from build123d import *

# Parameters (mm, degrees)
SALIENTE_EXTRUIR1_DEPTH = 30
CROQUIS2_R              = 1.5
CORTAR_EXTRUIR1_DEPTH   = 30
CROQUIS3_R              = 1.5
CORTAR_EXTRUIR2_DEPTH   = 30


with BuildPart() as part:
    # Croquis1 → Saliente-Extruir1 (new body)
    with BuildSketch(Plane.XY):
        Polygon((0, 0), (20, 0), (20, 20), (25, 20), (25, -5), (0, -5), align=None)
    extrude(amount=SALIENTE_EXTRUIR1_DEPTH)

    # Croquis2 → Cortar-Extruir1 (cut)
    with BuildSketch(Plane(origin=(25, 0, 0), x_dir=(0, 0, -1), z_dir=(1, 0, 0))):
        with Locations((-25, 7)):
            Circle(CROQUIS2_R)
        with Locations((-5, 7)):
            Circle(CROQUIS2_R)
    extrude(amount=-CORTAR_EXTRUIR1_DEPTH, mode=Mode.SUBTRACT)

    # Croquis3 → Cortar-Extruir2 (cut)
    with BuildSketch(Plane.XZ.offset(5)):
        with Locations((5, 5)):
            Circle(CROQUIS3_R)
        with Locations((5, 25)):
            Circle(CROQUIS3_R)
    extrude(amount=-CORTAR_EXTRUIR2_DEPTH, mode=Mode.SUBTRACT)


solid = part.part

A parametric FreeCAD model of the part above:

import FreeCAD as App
import Part
import Sketcher
from FreeCAD import Vector


def add_polygon(sketch, points):
    """Adds a closed chain of lines whose ends are joined by coincident constraints."""
    first, n = sketch.GeometryCount, len(points)
    for a, b in zip(points, points[1:] + points[:1]):
        sketch.addGeometry(Part.LineSegment(App.Vector(*a, 0), App.Vector(*b, 0)), False)
    for i in range(n):
        sketch.addConstraint(Sketcher.Constraint("Coincident", first + i, 2, first + (i + 1) % n, 1))

doc = App.newDocument("Part")
body = doc.addObject("PartDesign::Body", "Body")

sketch1 = body.newObject("Sketcher::SketchObject", "Sketch")
sketch1.AttachmentSupport = (doc.getObject("XY_Plane"), [""])
sketch1.MapMode = "FlatFace"
add_polygon(sketch1, [(20, 0), (0, 0), (0, -5), (25, -5), (25, 20), (20, 20)])
sketch1.addConstraint(Sketcher.Constraint("Horizontal", 0))
sketch1.addConstraint(Sketcher.Constraint("Vertical", 1))
sketch1.addConstraint(Sketcher.Constraint("Horizontal", 2))
sketch1.addConstraint(Sketcher.Constraint("Vertical", 3))
sketch1.addConstraint(Sketcher.Constraint("Horizontal", 4))
sketch1.addConstraint(Sketcher.Constraint("Vertical", 5))
sketch1.addConstraint(Sketcher.Constraint("Coincident", 0, 2, -1, 1))
sketch1.addConstraint(Sketcher.Constraint("Equal", 4, 1))
sketch1.addConstraint(Sketcher.Constraint("Equal", 2, 3))
sketch1.addConstraint(Sketcher.Constraint("DistanceX", 0, 2, 0, 1, 20.0))
sketch1.addConstraint(Sketcher.Constraint("DistanceX", 2, 1, 2, 2, 25.0))
pad1 = body.newObject("PartDesign::Pad", "Pad")
pad1.Profile = sketch1
pad1.Length = 30

sketch2 = body.newObject("Sketcher::SketchObject", "Sketch001")
sketch2.AttachmentSupport = (doc.getObject("YZ_Plane"), [""])
sketch2.MapMode = "FlatFace"
sketch2.AttachmentOffset = App.Placement(Vector(0, 0, 25), App.Rotation())
sketch2.addGeometry(Part.Circle(Vector(7, 25, 0), Vector(0, 0, 1), 1.5), False)
sketch2.addGeometry(Part.Circle(Vector(7, 5, 0), Vector(0, 0, 1), 1.5), False)
sketch2.addConstraint(Sketcher.Constraint("Equal", 0, 1))
sketch2.addConstraint(Sketcher.Constraint("Vertical", 0, 3, 1, 3))
sketch2.addConstraint(Sketcher.Constraint("Diameter", 0, 3.0))
sketch2.addConstraint(Sketcher.Constraint("DistanceX", -1, 1, 0, 3, 7.0))
sketch2.addConstraint(Sketcher.Constraint("DistanceY", -1, 1, 0, 3, 25.0))
sketch2.addConstraint(Sketcher.Constraint("DistanceY", -1, 1, 1, 3, 5.0))
pocket1 = body.newObject("PartDesign::Pocket", "Pocket")
pocket1.Profile = sketch2
pocket1.Length = 30

sketch3 = body.newObject("Sketcher::SketchObject", "Sketch002")
sketch3.AttachmentSupport = (doc.getObject("XZ_Plane"), [""])
sketch3.MapMode = "FlatFace"
sketch3.AttachmentOffset = App.Placement(Vector(0, 0, 5), App.Rotation())
sketch3.addGeometry(Part.Circle(Vector(5, 5, 0), Vector(0, 0, 1), 1.5), False)
sketch3.addGeometry(Part.Circle(Vector(5, 25, 0), Vector(0, 0, 1), 1.5), False)
sketch3.addConstraint(Sketcher.Constraint("Equal", 0, 1))
sketch3.addConstraint(Sketcher.Constraint("Vertical", 0, 3, 1, 3))
sketch3.addConstraint(Sketcher.Constraint("Diameter", 0, 3.0))
sketch3.addConstraint(Sketcher.Constraint("DistanceX", -1, 1, 0, 3, 5.0))
sketch3.addConstraint(Sketcher.Constraint("DistanceY", -1, 1, 0, 3, 5.0))
sketch3.addConstraint(Sketcher.Constraint("DistanceY", -1, 1, 1, 3, 25.0))
pocket2 = body.newObject("PartDesign::Pocket", "Pocket001")
pocket2.Profile = sketch3
pocket2.Length = 30

doc.recompute()
